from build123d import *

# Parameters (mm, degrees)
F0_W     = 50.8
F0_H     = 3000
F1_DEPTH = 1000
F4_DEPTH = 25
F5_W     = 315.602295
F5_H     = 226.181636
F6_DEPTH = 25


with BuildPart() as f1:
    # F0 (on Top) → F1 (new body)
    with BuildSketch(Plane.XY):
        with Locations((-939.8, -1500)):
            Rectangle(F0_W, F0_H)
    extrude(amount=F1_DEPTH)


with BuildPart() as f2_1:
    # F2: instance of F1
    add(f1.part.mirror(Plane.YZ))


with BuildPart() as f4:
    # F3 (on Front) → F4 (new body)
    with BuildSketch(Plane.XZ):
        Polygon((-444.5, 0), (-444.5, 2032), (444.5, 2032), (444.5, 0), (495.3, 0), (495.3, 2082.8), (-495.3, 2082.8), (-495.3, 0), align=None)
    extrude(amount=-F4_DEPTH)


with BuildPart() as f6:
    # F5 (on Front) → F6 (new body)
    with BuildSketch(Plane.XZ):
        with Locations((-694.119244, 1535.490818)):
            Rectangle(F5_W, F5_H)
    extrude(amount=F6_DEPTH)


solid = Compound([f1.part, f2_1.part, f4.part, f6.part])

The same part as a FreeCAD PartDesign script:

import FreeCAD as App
import Part
import Sketcher
from FreeCAD import Vector
Q = App.Units.Quantity


def add_polygon(sketch, points):
    """Adds a closed chain of lines whose ends are joined by coincident constraints."""
    first, n = sketch.GeometryCount, len(points)
    for a, b in zip(points, points[1:] + points[:1]):
        sketch.addGeometry(Part.LineSegment(App.Vector(*a, 0), App.Vector(*b, 0)), False)
    for i in range(n):
        sketch.addConstraint(Sketcher.Constraint("Coincident", first + i, 2, first + (i + 1) % n, 1))

doc = App.newDocument("Part")
params = doc.addObject("Spreadsheet::Sheet", "Params")
for row, (alias, value) in enumerate([
    ("sketch1_width", "2 in"),
    ("pad1_length", "1000 mm"),
    ("sketch2_width", "35 in"),
    ("sketch2_width2", "2 in"),
    ("sketch2_height", "80 in"),
    ("sketch2_height2", "82 in"),
    ("pad2_length", "25 mm"),
    ("pad3_length", "25 mm"),
], start=1):
    params.set(f"A{row}", alias)
    params.set(f"B{row}", "=" + value)
    params.setAlias(f"B{row}", alias)

body = doc.addObject("PartDesign::Body", "Body")

sketch1 = doc.addObject("Sketcher::SketchObject", "Sketch")
body.addObject(sketch1)
sketch1.AttachmentSupport = (doc.XY_Plane, [""])
sketch1.MapMode = "FlatFace"
add_polygon(sketch1, [(-965, 0), (-965, -3000), (-914, -3000), (-914, 0)])
sketch1.addConstraint(Sketcher.Constraint("Vertical", 0))
sketch1.addConstraint(Sketcher.Constraint("Horizontal", 1))
sketch1.addConstraint(Sketcher.Constraint("Vertical", 2))
sketch1.addConstraint(Sketcher.Constraint("Horizontal", 3))
sketch1.addConstraint(Sketcher.Constraint("PointOnObject", 2, 2, -1))
sketch1.addConstraint(Sketcher.Constraint("DistanceX", 1, 1, 1, 2, Q("2 in")))
sketch1.addConstraint(Sketcher.Constraint("DistanceX", 0, 2, -1, 1, Q("38 in")))
sketch1.addConstraint(Sketcher.Constraint("DistanceY", 0, 2, 0, 1, Q("3000 mm")))
sketch1.setExpression("Constraints[9]", "Params.sketch1_width")
pad1 = doc.addObject("PartDesign::Pad", "Pad")
body.addObject(pad1)
pad1.Profile = sketch1
pad1.setExpression("Length", "Params.pad1_length")
body2 = doc.addObject("PartDesign::Body", "Body001")
doc.recompute()

mirroring = doc.addObject("Part::Mirroring", "Mirroring")
mirroring.Source = body
mirroring.Base = Vector(0, 0, 0)
mirroring.Normal = Vector(1, 0, 0)
body2.BaseFeature = mirroring
doc.recompute()
body3 = doc.addObject("PartDesign::Body", "Body002")

sketch2 = doc.addObject("Sketcher::SketchObject", "Sketch001")
body3.addObject(sketch2)
sketch2.AttachmentSupport = (doc.getObject("XZ_Plane002"), [""])
sketch2.MapMode = "FlatFace"
add_polygon(sketch2, [(-444, 0), (-444, 2032), (444, 2032), (444, 0), (495, 0), (495, 2083), (-495, 2083), (-495, 0)])
sketch2.addConstraint(Sketcher.Constraint("Vertical", 0))
sketch2.addConstraint(Sketcher.Constraint("Horizontal", 1))
sketch2.addConstraint(Sketcher.Constraint("Vertical", 2))
sketch2.addConstraint(Sketcher.Constraint("Horizontal", 3))
sketch2.addConstraint(Sketcher.Constraint("Vertical", 4))
sketch2.addConstraint(Sketcher.Constraint("Horizontal", 5))
sketch2.addConstraint(Sketcher.Constraint("Vertical", 6))
sketch2.addConstraint(Sketcher.Constraint("Horizontal", 7))
sketch2.addConstraint(Sketcher.Constraint("Symmetric", 3, 2, 6, 2, -1, 1))
sketch2.addConstraint(Sketcher.Constraint("Symmetric", 2, 2, 7, 2, -2))
sketch2.addConstraint(Sketcher.Constraint("DistanceX", 1, 1, 1, 2, Q("35 in")))
sketch2.addConstraint(Sketcher.Constraint("DistanceX", 3, 1, 3, 2, Q("2 in")))
sketch2.addConstraint(Sketcher.Constraint("DistanceY", 0, 1, 0, 2, Q("80 in")))
sketch2.addConstraint(Sketcher.Constraint("DistanceY", 4, 1, 4, 2, Q("82 in")))
sketch2.setExpression("Constraints[18]", "Params.sketch2_width")
sketch2.setExpression("Constraints[19]", "Params.sketch2_width2")
sketch2.setExpression("Constraints[20]", "Params.sketch2_height")
sketch2.setExpression("Constraints[21]", "Params.sketch2_height2")
pad2 = doc.addObject("PartDesign::Pad", "Pad001")
body3.addObject(pad2)
pad2.Profile = sketch2
pad2.setExpression("Length", "Params.pad2_length")
pad2.Reversed = True
body4 = doc.addObject("PartDesign::Body", "Body003")

sketch3 = doc.addObject("Sketcher::SketchObject", "Sketch002")
body4.addObject(sketch3)
sketch3.AttachmentSupport = (doc.getObject("XZ_Plane003"), [""])
sketch3.MapMode = "FlatFace"
add_polygon(sketch3, [(-852, 1649), (-852, 1422), (-536, 1422), (-536, 1649)])
sketch3.addConstraint(Sketcher.Constraint("Vertical", 0))
sketch3.addConstraint(Sketcher.Constraint("Horizontal", 1))
sketch3.addConstraint(Sketcher.Constraint("Vertical", 2))
sketch3.addConstraint(Sketcher.Constraint("Horizontal", 3))
sketch3.addConstraint(Sketcher.Constraint("DistanceY", -1, 1, 0, 2, Q("56 in")))
sketch3.addConstraint(Sketcher.Constraint("DistanceX", 1, 1, 1, 2, Q("315.602295 mm")))
sketch3.addConstraint(Sketcher.Constraint("DistanceY", 0, 2, 0, 1, Q("226.181636 mm")))
sketch3.addConstraint(Sketcher.Constraint("DistanceX", 0, 2, -1, 1, Q("851.920392 mm")))
pad3 = doc.addObject("PartDesign::Pad", "Pad002")
body4.addObject(pad3)
pad3.Profile = sketch3
pad3.setExpression("Length", "Params.pad3_length")
mirroring.Visibility = False

doc.recompute()
